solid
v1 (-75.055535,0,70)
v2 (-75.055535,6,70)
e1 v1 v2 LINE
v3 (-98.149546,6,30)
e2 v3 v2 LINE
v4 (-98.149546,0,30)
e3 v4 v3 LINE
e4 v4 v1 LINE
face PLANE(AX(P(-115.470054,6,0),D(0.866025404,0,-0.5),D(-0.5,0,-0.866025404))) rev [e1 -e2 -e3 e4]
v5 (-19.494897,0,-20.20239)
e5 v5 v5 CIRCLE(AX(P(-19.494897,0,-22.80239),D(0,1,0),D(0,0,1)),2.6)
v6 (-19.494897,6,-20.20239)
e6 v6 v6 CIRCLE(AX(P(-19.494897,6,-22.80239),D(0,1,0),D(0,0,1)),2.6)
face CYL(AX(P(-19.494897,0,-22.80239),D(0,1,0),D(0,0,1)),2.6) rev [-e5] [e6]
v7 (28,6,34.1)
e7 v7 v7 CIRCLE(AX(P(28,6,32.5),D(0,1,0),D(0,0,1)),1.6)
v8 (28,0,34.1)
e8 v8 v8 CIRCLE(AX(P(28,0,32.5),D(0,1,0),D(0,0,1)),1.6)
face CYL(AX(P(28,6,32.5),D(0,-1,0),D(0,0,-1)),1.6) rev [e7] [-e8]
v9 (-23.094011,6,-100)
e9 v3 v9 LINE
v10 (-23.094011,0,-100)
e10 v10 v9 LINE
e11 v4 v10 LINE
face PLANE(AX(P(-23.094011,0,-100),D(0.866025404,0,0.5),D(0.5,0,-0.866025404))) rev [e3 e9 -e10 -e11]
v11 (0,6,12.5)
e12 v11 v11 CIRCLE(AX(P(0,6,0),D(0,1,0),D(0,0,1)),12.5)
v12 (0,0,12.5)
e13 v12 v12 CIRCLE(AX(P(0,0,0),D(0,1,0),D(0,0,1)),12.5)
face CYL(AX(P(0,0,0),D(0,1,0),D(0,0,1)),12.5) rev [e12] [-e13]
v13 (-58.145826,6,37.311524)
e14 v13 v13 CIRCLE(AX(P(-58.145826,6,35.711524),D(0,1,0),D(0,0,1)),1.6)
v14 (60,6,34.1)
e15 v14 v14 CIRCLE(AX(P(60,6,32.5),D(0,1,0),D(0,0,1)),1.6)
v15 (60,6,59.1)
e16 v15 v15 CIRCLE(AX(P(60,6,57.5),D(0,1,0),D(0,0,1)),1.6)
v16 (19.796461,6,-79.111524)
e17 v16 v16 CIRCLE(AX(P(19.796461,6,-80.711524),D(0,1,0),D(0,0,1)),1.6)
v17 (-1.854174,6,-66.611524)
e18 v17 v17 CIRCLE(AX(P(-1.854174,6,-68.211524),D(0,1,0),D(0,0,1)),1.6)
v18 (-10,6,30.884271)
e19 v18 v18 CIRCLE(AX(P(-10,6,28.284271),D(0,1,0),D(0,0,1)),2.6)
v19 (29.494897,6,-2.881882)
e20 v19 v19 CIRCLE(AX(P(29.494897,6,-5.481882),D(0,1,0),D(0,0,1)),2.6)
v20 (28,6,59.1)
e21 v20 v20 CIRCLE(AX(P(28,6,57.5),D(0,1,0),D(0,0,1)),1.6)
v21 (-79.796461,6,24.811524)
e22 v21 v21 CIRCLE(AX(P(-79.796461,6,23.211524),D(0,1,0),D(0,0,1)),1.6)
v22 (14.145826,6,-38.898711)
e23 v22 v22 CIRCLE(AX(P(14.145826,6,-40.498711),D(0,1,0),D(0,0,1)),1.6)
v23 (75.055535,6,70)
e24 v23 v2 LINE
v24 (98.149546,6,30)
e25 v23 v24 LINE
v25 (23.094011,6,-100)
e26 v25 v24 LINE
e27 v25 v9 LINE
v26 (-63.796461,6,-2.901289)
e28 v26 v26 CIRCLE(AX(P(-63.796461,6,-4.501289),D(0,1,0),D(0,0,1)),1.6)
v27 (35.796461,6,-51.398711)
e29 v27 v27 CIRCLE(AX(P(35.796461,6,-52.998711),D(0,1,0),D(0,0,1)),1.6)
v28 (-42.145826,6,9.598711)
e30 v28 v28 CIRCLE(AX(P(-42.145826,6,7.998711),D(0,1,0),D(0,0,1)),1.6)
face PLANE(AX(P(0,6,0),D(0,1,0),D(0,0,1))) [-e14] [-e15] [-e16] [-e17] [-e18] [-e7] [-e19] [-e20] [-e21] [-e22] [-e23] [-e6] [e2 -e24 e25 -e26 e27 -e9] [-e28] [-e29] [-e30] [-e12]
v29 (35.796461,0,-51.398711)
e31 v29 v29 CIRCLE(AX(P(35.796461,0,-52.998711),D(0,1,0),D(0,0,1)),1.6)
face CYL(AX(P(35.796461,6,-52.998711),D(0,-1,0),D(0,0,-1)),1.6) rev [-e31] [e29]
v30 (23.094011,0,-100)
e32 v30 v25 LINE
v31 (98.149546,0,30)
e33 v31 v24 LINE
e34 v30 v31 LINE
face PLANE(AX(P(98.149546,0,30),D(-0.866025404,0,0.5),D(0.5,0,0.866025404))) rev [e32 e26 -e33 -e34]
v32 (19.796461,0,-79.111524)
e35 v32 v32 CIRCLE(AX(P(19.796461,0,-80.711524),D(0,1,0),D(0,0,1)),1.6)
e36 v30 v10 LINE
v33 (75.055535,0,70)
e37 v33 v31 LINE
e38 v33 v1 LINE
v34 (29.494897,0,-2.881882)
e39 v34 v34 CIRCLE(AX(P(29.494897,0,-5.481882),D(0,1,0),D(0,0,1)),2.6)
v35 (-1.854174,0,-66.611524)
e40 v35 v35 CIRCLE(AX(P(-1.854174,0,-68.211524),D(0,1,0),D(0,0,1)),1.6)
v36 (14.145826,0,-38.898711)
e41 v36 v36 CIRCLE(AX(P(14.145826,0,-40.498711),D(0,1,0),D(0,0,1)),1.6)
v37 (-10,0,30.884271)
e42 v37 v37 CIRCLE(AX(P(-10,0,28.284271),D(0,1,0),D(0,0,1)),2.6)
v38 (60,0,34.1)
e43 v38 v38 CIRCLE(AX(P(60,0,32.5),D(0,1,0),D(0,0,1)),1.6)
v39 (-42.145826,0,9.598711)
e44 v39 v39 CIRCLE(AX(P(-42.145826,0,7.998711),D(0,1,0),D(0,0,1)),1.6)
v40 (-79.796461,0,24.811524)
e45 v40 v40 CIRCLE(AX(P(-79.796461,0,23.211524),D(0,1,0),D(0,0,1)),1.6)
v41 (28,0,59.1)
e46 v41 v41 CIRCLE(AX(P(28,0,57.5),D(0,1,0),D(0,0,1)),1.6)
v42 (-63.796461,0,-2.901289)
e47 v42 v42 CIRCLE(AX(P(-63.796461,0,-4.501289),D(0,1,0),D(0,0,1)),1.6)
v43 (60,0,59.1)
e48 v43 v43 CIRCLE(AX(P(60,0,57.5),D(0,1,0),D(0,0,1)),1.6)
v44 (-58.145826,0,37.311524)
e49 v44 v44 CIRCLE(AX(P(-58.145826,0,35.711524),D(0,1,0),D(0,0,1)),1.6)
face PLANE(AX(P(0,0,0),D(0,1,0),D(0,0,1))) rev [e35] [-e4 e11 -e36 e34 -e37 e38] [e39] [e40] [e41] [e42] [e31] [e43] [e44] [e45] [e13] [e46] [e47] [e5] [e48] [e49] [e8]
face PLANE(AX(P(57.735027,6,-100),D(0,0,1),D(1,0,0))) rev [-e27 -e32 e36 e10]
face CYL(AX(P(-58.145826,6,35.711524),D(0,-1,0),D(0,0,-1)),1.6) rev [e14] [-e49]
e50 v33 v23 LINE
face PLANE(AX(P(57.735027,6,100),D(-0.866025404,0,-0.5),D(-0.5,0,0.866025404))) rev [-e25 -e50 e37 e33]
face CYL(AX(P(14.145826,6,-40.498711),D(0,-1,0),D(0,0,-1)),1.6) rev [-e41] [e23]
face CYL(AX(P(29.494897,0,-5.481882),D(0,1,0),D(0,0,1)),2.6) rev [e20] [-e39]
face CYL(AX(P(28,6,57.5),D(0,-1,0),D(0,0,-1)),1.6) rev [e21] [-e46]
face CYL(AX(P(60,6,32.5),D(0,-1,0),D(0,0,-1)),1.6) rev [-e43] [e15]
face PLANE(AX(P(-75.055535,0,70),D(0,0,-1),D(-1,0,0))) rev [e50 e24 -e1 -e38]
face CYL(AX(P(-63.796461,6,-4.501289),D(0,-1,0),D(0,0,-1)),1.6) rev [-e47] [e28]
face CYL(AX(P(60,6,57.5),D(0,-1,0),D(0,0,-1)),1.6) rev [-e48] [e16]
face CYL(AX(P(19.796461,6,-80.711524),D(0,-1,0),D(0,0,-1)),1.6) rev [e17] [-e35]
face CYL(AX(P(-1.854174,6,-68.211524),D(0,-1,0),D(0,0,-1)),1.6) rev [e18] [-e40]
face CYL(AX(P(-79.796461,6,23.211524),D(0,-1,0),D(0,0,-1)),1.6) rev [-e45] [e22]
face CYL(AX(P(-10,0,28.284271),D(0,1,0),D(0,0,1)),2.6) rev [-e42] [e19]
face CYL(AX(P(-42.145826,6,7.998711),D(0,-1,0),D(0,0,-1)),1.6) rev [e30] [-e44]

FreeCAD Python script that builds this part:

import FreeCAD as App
import Part
import Sketcher
Q = App.Units.Quantity

doc = App.newDocument("Part")
body = doc.addObject("PartDesign::Body", "Body")

# Sketch on XZ plane
sketch1 = body.newObject("Sketcher::SketchObject", "Sketch")
sketch1.AttachmentSupport = (doc.getObject("XZ_Plane"), [""])
sketch1.MapMode = "FlatFace"
sketch1.addGeometry([
    Part.LineSegment(App.Vector(115, 0, 0), App.Vector(58, -100, 0)),  # 0
    Part.LineSegment(App.Vector(58, -100, 0), App.Vector(-58, -100, 0)),  # 1
    Part.LineSegment(App.Vector(-58, -100, 0), App.Vector(-115, 0, 0)),  # 2
    Part.LineSegment(App.Vector(-115, 0, 0), App.Vector(-58, 100, 0)),  # 3
    Part.LineSegment(App.Vector(-58, 100, 0), App.Vector(58, 100, 0)),  # 4
    Part.LineSegment(App.Vector(58, 100, 0), App.Vector(115, 0, 0)),  # 5
], False)
sketch1.addConstraint([
    Sketcher.Constraint("Coincident", 0, 2, 1, 1),
    Sketcher.Constraint("Coincident", 1, 2, 2, 1),
    Sketcher.Constraint("Coincident", 2, 2, 3, 1),
    Sketcher.Constraint("Coincident", 3, 2, 4, 1),
    Sketcher.Constraint("Coincident", 4, 2, 5, 1),
    Sketcher.Constraint("Coincident", 5, 2, 0, 1),
    Sketcher.Constraint("Horizontal", 1),
    Sketcher.Constraint("Horizontal", 4),
    Sketcher.Constraint("Symmetric", 0, 2, 3, 2, -1, 1),
    Sketcher.Constraint("Symmetric", 2, 2, 5, 2, -1, 1),
    Sketcher.Constraint("PointOnObject", 2, 2, -1),
    Sketcher.Constraint("Parallel", 2, 5),
    Sketcher.Constraint("Vertical", 1, 2, 3, 2),
    Sketcher.Constraint("Angle", 0, Q("-120 deg")),
    Sketcher.Constraint("DistanceY", 0, 2, -1, 1, 100.0),
    Sketcher.Constraint("DistanceX", 1, 2, 1, 1, 115.470054),
])
pad1 = body.newObject("PartDesign::Pad", "Pad")
pad1.Profile = sketch1
pad1.Length = 6
pad1.Reversed = True

# Sketch on XZ plane
sketch2 = body.newObject("Sketcher::SketchObject", "Sketch001")
sketch2.AttachmentSupport = (doc.getObject("XZ_Plane"), [""])
sketch2.MapMode = "FlatFace"
sketch2.AttachmentOffset = App.Placement(App.Vector(0, 0, -6), App.Rotation())
sketch2.addGeometry(Part.Circle(App.Vector(0, 0, 0), App.Vector(0, 0, 1), 12), False)
sketch2.addConstraint([
    Sketcher.Constraint("Coincident", 0, 3, -1, 1),
    Sketcher.Constraint("Diameter", 0, 25.0),
])
pocket1 = body.newObject("PartDesign::Pocket", "Pocket")
pocket1.Profile = sketch2
pocket1.Type = "ThroughAll"
pocket1.Reversed = True

# Sketch on XZ plane
sketch3 = body.newObject("Sketcher::SketchObject", "Sketch002")
sketch3.AttachmentSupport = (doc.getObject("XZ_Plane"), [""])
sketch3.MapMode = "FlatFace"
sketch3.AttachmentOffset = App.Placement(App.Vector(0, 0, -6), App.Rotation())
sketch3.addGeometry([
    Part.LineSegment(App.Vector(-98, 30, 0), App.Vector(-23, -100, 0)),  # 0
    Part.LineSegment(App.Vector(-23, -100, 0), App.Vector(-58, -100, 0)),  # 1
    Part.LineSegment(App.Vector(-58, -100, 0), App.Vector(-115, 0, 0)),  # 2
    Part.LineSegment(App.Vector(-115, 0, 0), App.Vector(-98, 30, 0)),  # 3
    Part.LineSegment(App.Vector(23, -100, 0), App.Vector(98, 30, 0)),  # 4
    Part.LineSegment(App.Vector(98, 30, 0), App.Vector(115, 0, 0)),  # 5
    Part.LineSegment(App.Vector(115, 0, 0), App.Vector(58, -100, 0)),  # 6
    Part.LineSegment(App.Vector(58, -100, 0), App.Vector(23, -100, 0)),  # 7
    Part.LineSegment(App.Vector(75, 70, 0), App.Vector(-75, 70, 0)),  # 8
    Part.LineSegment(App.Vector(-75, 70, 0), App.Vector(-58, 100, 0)),  # 9
    Part.LineSegment(App.Vector(-58, 100, 0), App.Vector(58, 100, 0)),  # 10
    Part.LineSegment(App.Vector(58, 100, 0), App.Vector(75, 70, 0)),  # 11
], False)
sketch3.addConstraint([
    Sketcher.Constraint("Coincident", 0, 2, 1, 1),
    Sketcher.Constraint("Coincident", 1, 2, 2, 1),
    Sketcher.Constraint("Coincident", 2, 2, 3, 1),
    Sketcher.Constraint("Coincident", 3, 2, 0, 1),
    Sketcher.Constraint("Coincident", 4, 2, 5, 1),
    Sketcher.Constraint("Coincident", 5, 2, 6, 1),
    Sketcher.Constraint("Coincident", 6, 2, 7, 1),
    Sketcher.Constraint("Coincident", 7, 2, 4, 1),
    Sketcher.Constraint("Coincident", 8, 2, 9, 1),
    Sketcher.Constraint("Coincident", 9, 2, 10, 1),
    Sketcher.Constraint("Coincident", 10, 2, 11, 1),
    Sketcher.Constraint("Coincident", 11, 2, 8, 1),
    Sketcher.Constraint("Horizontal", 1),
    Sketcher.Constraint("Horizontal", 7),
    Sketcher.Constraint("Horizontal", 8),
    Sketcher.Constraint("Horizontal", 10),
    Sketcher.Constraint("Symmetric", 2, 2, 5, 2, -1, 1),
    Sketcher.Constraint("Symmetric", 6, 2, 9, 2, -1, 1),
    Sketcher.Constraint("Symmetric", 1, 2, 10, 2, -1, 1),
    Sketcher.Constraint("Symmetric", 3, 2, 4, 2, -2),
    Sketcher.Constraint("PointOnObject", 2, 2, -1),
    Sketcher.Constraint("Parallel", 0, 2),
    Sketcher.Constraint("Parallel", 3, 4),
    Sketcher.Constraint("Parallel", 2, 5),
    Sketcher.Constraint("Parallel", 4, 6),
    Sketcher.Constraint("Parallel", 6, 9),
    Sketcher.Constraint("Parallel", 5, 11),
    Sketcher.Constraint("Equal", 5, 9),
    Sketcher.Constraint("Angle", 0, Q("-60 deg")),
    Sketcher.Constraint("DistanceY", 0, 2, -1, 1, 100.0),
    Sketcher.Constraint("DistanceY", -1, 1, 3, 2, 30.0),
    Sketcher.Constraint("DistanceX", 8, 2, 8, 1, 150.11107),
])
pocket2 = body.newObject("PartDesign::Pocket", "Pocket001")
pocket2.Profile = sketch3
pocket2.Type = "ThroughAll"
pocket2.Reversed = True

# Sketch on XZ plane
sketch4 = body.newObject("Sketcher::SketchObject", "Sketch003")
sketch4.AttachmentSupport = (doc.getObject("XZ_Plane"), [""])
sketch4.MapMode = "FlatFace"
sketch4.AttachmentOffset = App.Placement(App.Vector(0, 0, -6), App.Rotation())
sketch4.addGeometry([
    Part.Circle(App.Vector(-10, 28.3, 0), App.Vector(0, 0, 1), 2.6),
    Part.Circle(App.Vector(-19.5, -22.8, 0), App.Vector(0, 0, 1), 2.6),
    Part.Circle(App.Vector(29.5, -5.5, 0), App.Vector(0, 0, 1), 2.6),
], False)
sketch4.addConstraint([
    Sketcher.Constraint("Equal", 0, 1),
    Sketcher.Constraint("Equal", 1, 2),
    Sketcher.Constraint("Diameter", 0, 5.2),
    Sketcher.Constraint("DistanceX", 0, 3, -1, 1, 10.0),
    Sketcher.Constraint("DistanceY", -1, 1, 0, 3, 28.284271),
    Sketcher.Constraint("DistanceY", 1, 3, -1, 1, 22.80239),
    Sketcher.Constraint("DistanceY", 2, 3, -1, 1, 5.481882),
    Sketcher.Constraint("DistanceX", 1, 3, -1, 1, 19.494897),
    Sketcher.Constraint("DistanceX", -1, 1, 2, 3, 29.494897),
])
pocket3 = body.newObject("PartDesign::Pocket", "Pocket002")
pocket3.Profile = sketch4
pocket3.Type = "ThroughAll"
pocket3.Reversed = True

# Sketch on XZ plane
sketch5 = body.newObject("Sketcher::SketchObject", "Sketch004")
sketch5.AttachmentSupport = (doc.getObject("XZ_Plane"), [""])
sketch5.MapMode = "FlatFace"
sketch5.addGeometry([
    Part.Circle(App.Vector(60, 32.5, 0), App.Vector(0, 0, 1), 1.6),  # 0
    Part.Circle(App.Vector(28, 32.5, 0), App.Vector(0, 0, 1), 1.6),  # 1
    Part.Circle(App.Vector(60, 57.5, 0), App.Vector(0, 0, 1), 1.6),  # 2
    Part.Circle(App.Vector(28, 57.5, 0), App.Vector(0, 0, 1), 1.6),  # 3
    Part.Circle(App.Vector(-58.1, 35.7, 0), App.Vector(0, 0, 1), 1.6),  # 4
    Part.Circle(App.Vector(-42.1, 8, 0), App.Vector(0, 0, 1), 1.6),  # 5
    Part.Circle(App.Vector(-79.8, 23.2, 0), App.Vector(0, 0, 1), 1.6),  # 6
    Part.Circle(App.Vector(-63.8, -4.5, 0), App.Vector(0, 0, 1), 1.6),  # 7
    Part.Circle(App.Vector(-1.9, -68.2, 0), App.Vector(0, 0, 1), 1.6),  # 8
    Part.Circle(App.Vector(14.1, -40.5, 0), App.Vector(0, 0, 1), 1.6),  # 9
    Part.Circle(App.Vector(19.8, -80.7, 0), App.Vector(0, 0, 1), 1.6),  # 10
    Part.Circle(App.Vector(35.8, -53, 0), App.Vector(0, 0, 1), 1.6),  # 11
], False)
sketch5.addConstraint([
    Sketcher.Constraint("Equal", 0, 1),
    Sketcher.Constraint("Equal", 1, 2),
    Sketcher.Constraint("Equal", 2, 3),
    Sketcher.Constraint("Equal", 3, 4),
    Sketcher.Constraint("Equal", 4, 5),
    Sketcher.Constraint("Equal", 5, 6),
    Sketcher.Constraint("Equal", 6, 7),
    Sketcher.Constraint("Equal", 7, 8),
    Sketcher.Constraint("Equal", 8, 9),
    Sketcher.Constraint("Equal", 9, 10),
    Sketcher.Constraint("Equal", 10, 11),
    Sketcher.Constraint("Horizontal", 0, 3, 1, 3),
    Sketcher.Constraint("Horizontal", 2, 3, 3, 3),
    Sketcher.Constraint("Vertical", 0, 3, 2, 3),
    Sketcher.Constraint("Vertical", 1, 3, 3, 3),
    Sketcher.Constraint("Diameter", 0, 3.2),
    Sketcher.Constraint("DistanceX", -1, 1, 0, 3, 60.0),
    Sketcher.Constraint("DistanceX", -1, 1, 1, 3, 28.0),
    Sketcher.Constraint("DistanceY", 0, 3, 2, 3, 25.0),
    Sketcher.Constraint("DistanceX", 4, 3, 5, 3, 16.0),
    Sketcher.Constraint("DistanceX", 6, 3, 7, 3, 16.0),
    Sketcher.Constraint("DistanceX", 8, 3, 9, 3, 16.0),
    Sketcher.Constraint("DistanceX", 10, 3, 11, 3, 16.0),
    Sketcher.Constraint("DistanceY", -1, 1, 0, 3, 32.5),
    Sketcher.Constraint("DistanceY", 6, 3, 4, 3, 12.5),
    Sketcher.Constraint("DistanceY", 7, 3, 5, 3, 12.5),
    Sketcher.Constraint("DistanceY", 10, 3, 8, 3, 12.5),
    Sketcher.Constraint("DistanceY", 11, 3, 9, 3, 12.5),
    Sketcher.Constraint("DistanceY", -1, 1, 5, 3, 7.998711),
    Sketcher.Constraint("DistanceX", 6, 3, -1, 1, 79.796461),
    Sketcher.Constraint("DistanceY", 9, 3, -1, 1, 40.498711),
    Sketcher.Constraint("DistanceX", -1, 1, 10, 3, 19.796461),
    Sketcher.Constraint("DistanceX", 5, 3, 8, 3, 40.291651),
    Sketcher.Constraint("DistanceY", 8, 3, 4, 3, 103.923048),
    Sketcher.Constraint("DistanceX", 4, 3, -1, 1, 58.145826),
    Sketcher.Constraint("DistanceY", -1, 1, 4, 3, 35.711524),
])
pocket4 = body.newObject("PartDesign::Pocket", "Pocket003")
pocket4.Profile = sketch5
pocket4.Type = "ThroughAll"

doc.recompute()
